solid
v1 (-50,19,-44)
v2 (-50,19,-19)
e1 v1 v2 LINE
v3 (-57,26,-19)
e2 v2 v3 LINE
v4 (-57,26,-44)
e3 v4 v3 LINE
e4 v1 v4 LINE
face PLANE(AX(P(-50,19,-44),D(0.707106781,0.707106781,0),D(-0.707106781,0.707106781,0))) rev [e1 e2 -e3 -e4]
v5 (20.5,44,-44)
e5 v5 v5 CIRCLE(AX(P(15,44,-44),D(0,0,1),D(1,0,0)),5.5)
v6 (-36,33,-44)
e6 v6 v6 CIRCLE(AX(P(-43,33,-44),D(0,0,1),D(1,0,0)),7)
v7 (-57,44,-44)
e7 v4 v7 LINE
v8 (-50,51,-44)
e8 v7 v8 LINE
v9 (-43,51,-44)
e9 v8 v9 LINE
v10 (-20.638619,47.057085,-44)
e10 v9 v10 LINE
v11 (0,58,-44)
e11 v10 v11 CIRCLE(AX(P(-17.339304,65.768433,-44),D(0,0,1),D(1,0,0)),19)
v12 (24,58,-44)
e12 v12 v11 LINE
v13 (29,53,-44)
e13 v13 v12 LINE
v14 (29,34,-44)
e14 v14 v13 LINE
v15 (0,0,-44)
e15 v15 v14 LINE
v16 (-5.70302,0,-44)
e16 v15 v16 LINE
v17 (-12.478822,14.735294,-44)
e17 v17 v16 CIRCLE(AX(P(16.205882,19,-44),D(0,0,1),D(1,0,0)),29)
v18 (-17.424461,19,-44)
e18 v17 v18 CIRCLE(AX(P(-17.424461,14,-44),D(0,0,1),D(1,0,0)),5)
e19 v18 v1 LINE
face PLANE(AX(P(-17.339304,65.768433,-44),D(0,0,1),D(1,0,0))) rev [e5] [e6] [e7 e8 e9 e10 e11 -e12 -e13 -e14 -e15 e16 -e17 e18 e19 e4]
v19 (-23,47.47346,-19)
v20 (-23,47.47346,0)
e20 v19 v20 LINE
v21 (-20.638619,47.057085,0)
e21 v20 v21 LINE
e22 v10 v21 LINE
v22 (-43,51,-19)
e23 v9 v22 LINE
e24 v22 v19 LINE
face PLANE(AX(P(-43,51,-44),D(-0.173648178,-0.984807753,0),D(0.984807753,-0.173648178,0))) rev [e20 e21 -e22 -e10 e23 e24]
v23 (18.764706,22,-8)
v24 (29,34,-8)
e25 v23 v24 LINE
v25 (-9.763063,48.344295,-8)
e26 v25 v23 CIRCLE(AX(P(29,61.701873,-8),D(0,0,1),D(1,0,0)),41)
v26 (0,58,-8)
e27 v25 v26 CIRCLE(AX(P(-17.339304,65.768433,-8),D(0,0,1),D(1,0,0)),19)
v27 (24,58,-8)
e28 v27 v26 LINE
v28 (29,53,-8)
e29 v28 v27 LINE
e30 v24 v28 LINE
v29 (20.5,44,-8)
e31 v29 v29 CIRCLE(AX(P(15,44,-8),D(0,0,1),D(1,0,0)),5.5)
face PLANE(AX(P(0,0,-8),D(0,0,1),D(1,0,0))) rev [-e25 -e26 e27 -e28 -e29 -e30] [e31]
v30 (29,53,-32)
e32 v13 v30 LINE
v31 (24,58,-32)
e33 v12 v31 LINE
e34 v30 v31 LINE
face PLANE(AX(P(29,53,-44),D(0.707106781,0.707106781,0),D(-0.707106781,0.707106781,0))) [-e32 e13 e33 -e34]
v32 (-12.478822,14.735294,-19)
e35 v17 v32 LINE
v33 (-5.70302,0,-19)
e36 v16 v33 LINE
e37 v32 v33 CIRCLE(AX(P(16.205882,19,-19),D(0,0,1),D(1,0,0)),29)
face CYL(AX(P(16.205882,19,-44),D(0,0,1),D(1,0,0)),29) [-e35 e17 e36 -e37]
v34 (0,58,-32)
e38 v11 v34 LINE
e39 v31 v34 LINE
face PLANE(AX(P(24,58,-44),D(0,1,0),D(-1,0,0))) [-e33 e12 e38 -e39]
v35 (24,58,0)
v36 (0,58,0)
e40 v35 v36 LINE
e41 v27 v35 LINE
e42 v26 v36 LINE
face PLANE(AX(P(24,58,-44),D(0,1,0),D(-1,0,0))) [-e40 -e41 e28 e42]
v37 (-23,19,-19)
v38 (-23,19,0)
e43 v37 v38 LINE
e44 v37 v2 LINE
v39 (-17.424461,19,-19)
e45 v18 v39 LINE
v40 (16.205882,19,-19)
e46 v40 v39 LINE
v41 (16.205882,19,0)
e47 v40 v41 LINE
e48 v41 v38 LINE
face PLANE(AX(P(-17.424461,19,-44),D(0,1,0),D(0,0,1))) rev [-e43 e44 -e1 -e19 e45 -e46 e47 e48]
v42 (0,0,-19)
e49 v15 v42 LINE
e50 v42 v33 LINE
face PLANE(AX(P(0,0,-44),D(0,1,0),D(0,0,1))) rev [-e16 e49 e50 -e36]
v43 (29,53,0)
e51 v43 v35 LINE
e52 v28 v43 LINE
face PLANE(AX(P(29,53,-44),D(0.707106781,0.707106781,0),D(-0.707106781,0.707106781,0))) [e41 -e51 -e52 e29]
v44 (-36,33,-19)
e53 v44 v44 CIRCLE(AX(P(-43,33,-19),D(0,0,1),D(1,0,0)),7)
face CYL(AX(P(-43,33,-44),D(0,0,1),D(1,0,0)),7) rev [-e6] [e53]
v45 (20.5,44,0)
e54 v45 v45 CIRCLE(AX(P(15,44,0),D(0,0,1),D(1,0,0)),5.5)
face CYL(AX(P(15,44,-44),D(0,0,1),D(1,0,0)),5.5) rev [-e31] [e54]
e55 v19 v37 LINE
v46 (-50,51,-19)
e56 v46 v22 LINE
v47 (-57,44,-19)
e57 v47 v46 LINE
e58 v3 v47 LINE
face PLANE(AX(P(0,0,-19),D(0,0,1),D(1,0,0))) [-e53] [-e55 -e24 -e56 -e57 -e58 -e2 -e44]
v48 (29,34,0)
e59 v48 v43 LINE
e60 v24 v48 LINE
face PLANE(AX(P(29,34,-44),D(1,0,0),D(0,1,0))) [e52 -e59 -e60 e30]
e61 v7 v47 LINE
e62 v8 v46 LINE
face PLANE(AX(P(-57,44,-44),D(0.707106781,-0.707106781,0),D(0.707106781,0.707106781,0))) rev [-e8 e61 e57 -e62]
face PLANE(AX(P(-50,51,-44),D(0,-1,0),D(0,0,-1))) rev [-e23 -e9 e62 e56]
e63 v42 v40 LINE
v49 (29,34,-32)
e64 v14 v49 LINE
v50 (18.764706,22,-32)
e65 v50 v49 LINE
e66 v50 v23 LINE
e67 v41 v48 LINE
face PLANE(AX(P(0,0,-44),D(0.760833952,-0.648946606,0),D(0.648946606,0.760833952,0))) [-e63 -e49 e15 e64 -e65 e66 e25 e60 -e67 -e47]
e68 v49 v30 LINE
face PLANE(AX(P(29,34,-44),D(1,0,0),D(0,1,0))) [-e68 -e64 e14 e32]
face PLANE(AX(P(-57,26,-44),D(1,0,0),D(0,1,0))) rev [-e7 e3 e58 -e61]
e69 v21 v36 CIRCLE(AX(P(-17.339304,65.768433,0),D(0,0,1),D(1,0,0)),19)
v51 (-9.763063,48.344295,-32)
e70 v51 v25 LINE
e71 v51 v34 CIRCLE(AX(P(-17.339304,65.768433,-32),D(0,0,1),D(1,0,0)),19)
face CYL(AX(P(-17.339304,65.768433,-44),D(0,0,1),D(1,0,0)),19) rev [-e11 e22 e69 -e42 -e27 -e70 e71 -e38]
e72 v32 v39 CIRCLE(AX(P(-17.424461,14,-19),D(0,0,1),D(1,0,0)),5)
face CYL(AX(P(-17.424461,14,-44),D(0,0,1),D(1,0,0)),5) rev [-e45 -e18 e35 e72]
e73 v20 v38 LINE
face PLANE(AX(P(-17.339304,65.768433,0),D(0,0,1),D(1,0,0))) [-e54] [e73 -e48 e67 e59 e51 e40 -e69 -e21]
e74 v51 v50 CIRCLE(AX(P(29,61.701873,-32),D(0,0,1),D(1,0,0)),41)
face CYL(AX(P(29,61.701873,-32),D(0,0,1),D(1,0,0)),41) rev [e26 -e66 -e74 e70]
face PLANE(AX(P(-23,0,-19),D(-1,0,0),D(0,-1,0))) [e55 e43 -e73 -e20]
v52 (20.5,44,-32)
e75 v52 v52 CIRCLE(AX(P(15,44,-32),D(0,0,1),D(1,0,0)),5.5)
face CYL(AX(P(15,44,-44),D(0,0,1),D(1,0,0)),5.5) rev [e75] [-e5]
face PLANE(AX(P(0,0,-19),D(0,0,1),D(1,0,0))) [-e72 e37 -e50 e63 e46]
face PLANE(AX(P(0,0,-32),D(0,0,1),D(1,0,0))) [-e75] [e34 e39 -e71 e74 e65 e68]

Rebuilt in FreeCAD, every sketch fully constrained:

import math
import FreeCAD as App
import Part
import Sketcher

V = App.Vector
Q = App.Units.Quantity


def add_polygon(sketch, points):
    """Adds a closed chain of lines whose ends are joined by coincident constraints."""
    first, n = sketch.GeometryCount, len(points)
    for a, b in zip(points, points[1:] + points[:1]):
        sketch.addGeometry(Part.LineSegment(App.Vector(*a, 0), App.Vector(*b, 0)), False)
    for i in range(n):
        sketch.addConstraint(Sketcher.Constraint("Coincident", first + i, 2, first + (i + 1) % n, 1))

doc = App.newDocument("Part")
params = doc.addObject("Spreadsheet::Sheet", "Params")
for row, (alias, value) in enumerate([
    ("sketch1_diameter", "14 mm"),
    ("sketch1_radius", "19 mm"),
    ("sketch1_radius2", "5 mm"),
    ("sketch1_radius3", "29 mm"),
    ("sketch1_width", "24 mm"),
    ("pad1_length", "44 mm"),
    ("sketch2_diameter", "14 mm"),
    ("sketch2_radius", "5 mm"),
    ("sketch2_radius2", "29 mm"),
    ("sketch2_width", "27 mm"),
    ("sketch2_width2", "7 mm"),
    ("pocket1_length", "19 mm"),
    ("sketch3_diameter", "11 mm"),
    ("sketch4_diameter", "11 mm"),
    ("sketch4_radius", "41 mm"),
    ("sketch4_radius2", "19 mm"),
    ("sketch4_width", "24 mm"),
    ("sketch4_height", "19 mm"),
    ("pocket3_length", "24 mm"),
], start=1):
    params.set(f"A{row}", alias)
    params.set(f"B{row}", "=" + value)
    params.setAlias(f"B{row}", alias)

body = doc.addObject("PartDesign::Body", "Body")

# Sketch on XY plane
sketch1 = body.newObject("Sketcher::SketchObject", "Sketch")
sketch1.AttachmentSupport = (doc.getObject("XY_Plane"), [""])
sketch1.MapMode = "FlatFace"
sketch1.addGeometry([
    Part.LineSegment(V(0, 0, 0), V(29, 34, 0)),  # 0
    Part.LineSegment(V(29, 34, 0), V(29, 53, 0)),  # 1
    Part.LineSegment(V(29, 53, 0), V(24, 58, 0)),  # 2
    Part.LineSegment(V(24, 58, 0), V(0, 58, 0)),  # 3
    Part.ArcOfCircle(Part.Circle(V(-17, 66, 0), V(0, 0, 1), 19), math.radians(-100), math.radians(-24)),  # 4
    Part.LineSegment(V(-21, 47, 0), V(-43, 51, 0)),  # 5
    Part.LineSegment(V(-43, 51, 0), V(-50, 51, 0)),  # 6
    Part.LineSegment(V(-50, 51, 0), V(-57, 44, 0)),  # 7
    Part.LineSegment(V(-57, 44, 0), V(-57, 26, 0)),  # 8
    Part.LineSegment(V(-57, 26, 0), V(-50, 19, 0)),  # 9
    Part.LineSegment(V(-50, 19, 0), V(-17, 19, 0)),  # 10
    Part.ArcOfCircle(Part.Circle(V(-17, 14, 0), V(0, 0, 1), 5), math.radians(8), math.radians(90)),  # 11
    Part.ArcOfCircle(Part.Circle(V(16, 19, 0), V(0, 0, 1), 29), math.radians(-172), math.radians(-139)),  # 12
    Part.LineSegment(V(-6, 0, 0), V(0, 0, 0)),  # 13
    Part.Circle(V(-43, 33, 0), V(0, 0, 1), 7),  # 14
], False)
sketch1.addConstraint([
    Sketcher.Constraint("Coincident", 0, 2, 1, 1),
    Sketcher.Constraint("Coincident", 1, 2, 2, 1),
    Sketcher.Constraint("Coincident", 2, 2, 3, 1),
    Sketcher.Constraint("Coincident", 3, 2, 4, 2),
    Sketcher.Constraint("Tangent", 4, 1, 5, 1),
    Sketcher.Constraint("Coincident", 5, 2, 6, 1),
    Sketcher.Constraint("Coincident", 6, 2, 7, 1),
    Sketcher.Constraint("Coincident", 7, 2, 8, 1),
    Sketcher.Constraint("Coincident", 8, 2, 9, 1),
    Sketcher.Constraint("Coincident", 9, 2, 10, 1),
    Sketcher.Constraint("Tangent", 10, 2, 11, 2),
    Sketcher.Constraint("Tangent", 11, 1, 12, 1),
    Sketcher.Constraint("Coincident", 12, 2, 13, 1),
    Sketcher.Constraint("Coincident", 13, 2, 0, 1),
    Sketcher.Constraint("Vertical", 1),
    Sketcher.Constraint("Horizontal", 3),
    Sketcher.Constraint("Horizontal", 6),
    Sketcher.Constraint("Vertical", 8),
    Sketcher.Constraint("Horizontal", 10),
    Sketcher.Constraint("Horizontal", 13),
    Sketcher.Constraint("Coincident", 13, 2, -1, 1),
    Sketcher.Constraint("PointOnObject", 3, 2, -2),
    Sketcher.Constraint("Perpendicular", 2, 7),
    Sketcher.Constraint("Perpendicular", 7, 9),
    Sketcher.Constraint("Horizontal", 12, 3, 9, 2),
    Sketcher.Constraint("Vertical", 14, 3, 5, 2),
    Sketcher.Constraint("Vertical", 6, 2, 9, 2),
    Sketcher.Constraint("Equal", 7, 9),
    Sketcher.Constraint("Diameter", 14, Q("14 mm")),
    Sketcher.Constraint("Radius", 4, Q("19 mm")),
    Sketcher.Constraint("Radius", 11, Q("5 mm")),
    Sketcher.Constraint("Radius", 12, Q("29 mm")),
    Sketcher.Constraint("DistanceX", 3, 2, 3, 1, Q("24 mm")),
    Sketcher.Constraint("DistanceX", 6, 2, 6, 1, Q("7 mm")),
    Sketcher.Constraint("DistanceY", 1, 1, 1, 2, Q("19 mm")),
    Sketcher.Constraint("DistanceY", 8, 2, 8, 1, Q("18 mm")),
    Sketcher.Constraint("Angle", 5, Q("170 deg")),
    Sketcher.Constraint("DistanceY", -1, 1, 11, 3, Q("14 mm")),
    Sketcher.Constraint("DistanceX", 14, 3, -1, 1, Q("43 mm")),
    Sketcher.Constraint("DistanceY", -1, 1, 14, 3, Q("33 mm")),
    Sketcher.Constraint("DistanceX", -1, 1, 0, 2, Q("29 mm")),
    Sketcher.Constraint("DistanceY", -1, 1, 0, 2, Q("34 mm")),
    Sketcher.Constraint("DistanceY", -1, 1, 5, 2, Q("51 mm")),
    Sketcher.Constraint("DistanceX", 10, 1, 10, 2, Q("32.575539 mm")),
])
sketch1.setExpression("Constraints[28]", "Params.sketch1_diameter")
sketch1.setExpression("Constraints[29]", "Params.sketch1_radius")
sketch1.setExpression("Constraints[30]", "Params.sketch1_radius2")
sketch1.setExpression("Constraints[31]", "Params.sketch1_radius3")
sketch1.setExpression("Constraints[32]", "Params.sketch1_width")
pad1 = body.newObject("PartDesign::Pad", "Pad")
pad1.Profile = sketch1
pad1.setExpression("Length", "Params.pad1_length")
pad1.Reversed = True

# Sketch on XY plane
sketch2 = body.newObject("Sketcher::SketchObject", "Sketch001")
sketch2.AttachmentSupport = (doc.getObject("XY_Plane"), [""])
sketch2.MapMode = "FlatFace"
add_polygon(sketch2, [(-50, 19), (-23, 19), (-23, 47), (-43, 51), (-50, 51), (-57, 44), (-57, 26)])  # lines 0-6
sketch2.addGeometry(Part.Circle(V(-43, 33, 0), V(0, 0, 1), 7), False)  # 7
sketch2.addGeometry(Part.LineSegment(V(-6, 0, 0), V(0, 0, 0)), False)  # 8
sketch2.addGeometry(Part.LineSegment(V(0, 0, 0), V(16, 19, 0)), False)  # 9
sketch2.addGeometry(Part.LineSegment(V(16, 19, 0), V(-17, 19, 0)), False)  # 10
sketch2.addGeometry(Part.ArcOfCircle(Part.Circle(V(-17, 14, 0), V(0, 0, 1), 5), math.radians(8), math.radians(90)), False)  # 11
sketch2.addGeometry(Part.ArcOfCircle(Part.Circle(V(16, 19, 0), V(0, 0, 1), 29), math.radians(-172), math.radians(-139)), False)  # 12
sketch2.addConstraint([
    Sketcher.Constraint("Coincident", 8, 2, 9, 1),
    Sketcher.Constraint("Coincident", 9, 2, 10, 1),
    Sketcher.Constraint("Tangent", 10, 2, 11, 2),
    Sketcher.Constraint("Tangent", 11, 1, 12, 1),
    Sketcher.Constraint("Coincident", 12, 2, 8, 1),
    Sketcher.Constraint("Horizontal", 0),
    Sketcher.Constraint("Vertical", 1),
    Sketcher.Constraint("Horizontal", 3),
    Sketcher.Constraint("Vertical", 5),
    Sketcher.Constraint("Horizontal", 8),
    Sketcher.Constraint("Horizontal", 10),
    Sketcher.Constraint("Coincident", 8, 2, -1, 1),
    Sketcher.Constraint("Coincident", 9, 2, 12, 3),
    Sketcher.Constraint("Perpendicular", 4, 6),
    Sketcher.Constraint("Horizontal", 12, 3, 0, 2),
    Sketcher.Constraint("Vertical", 7, 3, 2, 2),
    Sketcher.Constraint("Vertical", 3, 2, 6, 2),
    Sketcher.Constraint("Equal", 4, 6),
    Sketcher.Constraint("Diameter", 7, Q("14 mm")),
    Sketcher.Constraint("Radius", 11, Q("5 mm")),
    Sketcher.Constraint("Radius", 12, Q("29 mm")),
    Sketcher.Constraint("DistanceX", 0, 1, 0, 2, Q("27 mm")),
    Sketcher.Constraint("DistanceX", 3, 2, 3, 1, Q("7 mm")),
    Sketcher.Constraint("DistanceY", 5, 2, 5, 1, Q("18 mm")),
    Sketcher.Constraint("Angle", 2, Q("170 deg")),
    Sketcher.Constraint("DistanceX", 7, 3, -1, 1, Q("43 mm")),
    Sketcher.Constraint("DistanceY", -1, 1, 7, 3, Q("33 mm")),
    Sketcher.Constraint("DistanceY", -1, 1, 11, 3, Q("14 mm")),
    Sketcher.Constraint("DistanceY", -1, 1, 2, 2, Q("51 mm")),
    Sketcher.Constraint("DistanceX", 8, 1, 8, 2, Q("5.70302 mm")),
])
sketch2.setExpression("Constraints[25]", "Params.sketch2_diameter")
sketch2.setExpression("Constraints[26]", "Params.sketch2_radius")
sketch2.setExpression("Constraints[27]", "Params.sketch2_radius2")
sketch2.setExpression("Constraints[28]", "Params.sketch2_width")
sketch2.setExpression("Constraints[29]", "Params.sketch2_width2")
pocket1 = body.newObject("PartDesign::Pocket", "Pocket")
pocket1.Profile = sketch2
pocket1.setExpression("Length", "Params.pocket1_length")

# Sketch on XY plane
sketch3 = body.newObject("Sketcher::SketchObject", "Sketch002")
sketch3.AttachmentSupport = (doc.getObject("XY_Plane"), [""])
sketch3.MapMode = "FlatFace"
sketch3.addGeometry(Part.Circle(V(15, 44, 0), V(0, 0, 1), 6), False)
sketch3.addConstraint([
    Sketcher.Constraint("Diameter", 0, Q("11 mm")),
    Sketcher.Constraint("DistanceX", -1, 1, 0, 3, Q("15 mm")),
    Sketcher.Constraint("DistanceY", -1, 1, 0, 3, Q("44 mm")),
])
sketch3.setExpression("Constraints[0]", "Params.sketch3_diameter")
pocket2 = body.newObject("PartDesign::Pocket", "Pocket001")
pocket2.Profile = sketch3
pocket2.Type = "ThroughAll"

# Sketch on XY plane
sketch4 = body.newObject("Sketcher::SketchObject", "Sketch003")
sketch4.AttachmentSupport = (doc.getObject("XY_Plane"), [""])
sketch4.MapMode = "FlatFace"
sketch4.AttachmentOffset = App.Placement(V(0, 0, -8), App.Rotation())
sketch4.addGeometry([
    Part.ArcOfCircle(Part.Circle(V(29, 62, 0), V(0, 0, 1), 41), math.radians(-161), math.radians(-104)),  # 0
    Part.LineSegment(V(19, 22, 0), V(29, 34, 0)),  # 1
    Part.LineSegment(V(29, 34, 0), V(29, 53, 0)),  # 2
    Part.LineSegment(V(29, 53, 0), V(24, 58, 0)),  # 3
    Part.LineSegment(V(24, 58, 0), V(0, 58, 0)),  # 4
    Part.ArcOfCircle(Part.Circle(V(-17, 66, 0), V(0, 0, 1), 19), math.radians(-66), math.radians(-24)),  # 5
    Part.Circle(V(15, 44, 0), V(0, 0, 1), 6),  # 6
], False)
sketch4.addConstraint([
    Sketcher.Constraint("Coincident", 0, 2, 1, 1),
    Sketcher.Constraint("Coincident", 1, 2, 2, 1),
    Sketcher.Constraint("Coincident", 2, 2, 3, 1),
    Sketcher.Constraint("Coincident", 3, 2, 4, 1),
    Sketcher.Constraint("Coincident", 4, 2, 5, 2),
    Sketcher.Constraint("Coincident", 5, 1, 0, 1),
    Sketcher.Constraint("Vertical", 2),
    Sketcher.Constraint("Horizontal", 4),
    Sketcher.Constraint("PointOnObject", 4, 2, -2),
    Sketcher.Constraint("Vertical", 0, 3, 1, 2),
    Sketcher.Constraint("Diameter", 6, Q("11 mm")),
    Sketcher.Constraint("Radius", 0, Q("41 mm")),
    Sketcher.Constraint("Radius", 5, Q("19 mm")),
    Sketcher.Constraint("DistanceX", 4, 2, 4, 1, Q("24 mm")),
    Sketcher.Constraint("DistanceY", 2, 1, 2, 2, Q("19 mm")),
    Sketcher.Constraint("Angle", 3, Q("135 deg")),
    Sketcher.Constraint("DistanceX", -1, 1, 0, 3, Q("29 mm")),
    Sketcher.Constraint("DistanceX", -1, 1, 6, 3, Q("15 mm")),
    Sketcher.Constraint("DistanceY", -1, 1, 6, 3, Q("44 mm")),
    Sketcher.Constraint("DistanceY", -1, 1, 0, 2, Q("22 mm")),
    Sketcher.Constraint("DistanceY", -1, 1, 1, 2, Q("34 mm")),
    Sketcher.Constraint("DistanceY", 0, 3, 5, 3, Q("4.066559 mm")),
    Sketcher.Constraint("DistanceX", 5, 3, 0, 2, Q("36.10401 mm")),
])
sketch4.setExpression("Constraints[10]", "Params.sketch4_diameter")
sketch4.setExpression("Constraints[11]", "Params.sketch4_radius")
sketch4.setExpression("Constraints[12]", "Params.sketch4_radius2")
sketch4.setExpression("Constraints[13]", "Params.sketch4_width")
sketch4.setExpression("Constraints[14]", "Params.sketch4_height")
pocket3 = body.newObject("PartDesign::Pocket", "Pocket002")
pocket3.Profile = sketch4
pocket3.setExpression("Length", "Params.pocket3_length")

doc.recompute()
